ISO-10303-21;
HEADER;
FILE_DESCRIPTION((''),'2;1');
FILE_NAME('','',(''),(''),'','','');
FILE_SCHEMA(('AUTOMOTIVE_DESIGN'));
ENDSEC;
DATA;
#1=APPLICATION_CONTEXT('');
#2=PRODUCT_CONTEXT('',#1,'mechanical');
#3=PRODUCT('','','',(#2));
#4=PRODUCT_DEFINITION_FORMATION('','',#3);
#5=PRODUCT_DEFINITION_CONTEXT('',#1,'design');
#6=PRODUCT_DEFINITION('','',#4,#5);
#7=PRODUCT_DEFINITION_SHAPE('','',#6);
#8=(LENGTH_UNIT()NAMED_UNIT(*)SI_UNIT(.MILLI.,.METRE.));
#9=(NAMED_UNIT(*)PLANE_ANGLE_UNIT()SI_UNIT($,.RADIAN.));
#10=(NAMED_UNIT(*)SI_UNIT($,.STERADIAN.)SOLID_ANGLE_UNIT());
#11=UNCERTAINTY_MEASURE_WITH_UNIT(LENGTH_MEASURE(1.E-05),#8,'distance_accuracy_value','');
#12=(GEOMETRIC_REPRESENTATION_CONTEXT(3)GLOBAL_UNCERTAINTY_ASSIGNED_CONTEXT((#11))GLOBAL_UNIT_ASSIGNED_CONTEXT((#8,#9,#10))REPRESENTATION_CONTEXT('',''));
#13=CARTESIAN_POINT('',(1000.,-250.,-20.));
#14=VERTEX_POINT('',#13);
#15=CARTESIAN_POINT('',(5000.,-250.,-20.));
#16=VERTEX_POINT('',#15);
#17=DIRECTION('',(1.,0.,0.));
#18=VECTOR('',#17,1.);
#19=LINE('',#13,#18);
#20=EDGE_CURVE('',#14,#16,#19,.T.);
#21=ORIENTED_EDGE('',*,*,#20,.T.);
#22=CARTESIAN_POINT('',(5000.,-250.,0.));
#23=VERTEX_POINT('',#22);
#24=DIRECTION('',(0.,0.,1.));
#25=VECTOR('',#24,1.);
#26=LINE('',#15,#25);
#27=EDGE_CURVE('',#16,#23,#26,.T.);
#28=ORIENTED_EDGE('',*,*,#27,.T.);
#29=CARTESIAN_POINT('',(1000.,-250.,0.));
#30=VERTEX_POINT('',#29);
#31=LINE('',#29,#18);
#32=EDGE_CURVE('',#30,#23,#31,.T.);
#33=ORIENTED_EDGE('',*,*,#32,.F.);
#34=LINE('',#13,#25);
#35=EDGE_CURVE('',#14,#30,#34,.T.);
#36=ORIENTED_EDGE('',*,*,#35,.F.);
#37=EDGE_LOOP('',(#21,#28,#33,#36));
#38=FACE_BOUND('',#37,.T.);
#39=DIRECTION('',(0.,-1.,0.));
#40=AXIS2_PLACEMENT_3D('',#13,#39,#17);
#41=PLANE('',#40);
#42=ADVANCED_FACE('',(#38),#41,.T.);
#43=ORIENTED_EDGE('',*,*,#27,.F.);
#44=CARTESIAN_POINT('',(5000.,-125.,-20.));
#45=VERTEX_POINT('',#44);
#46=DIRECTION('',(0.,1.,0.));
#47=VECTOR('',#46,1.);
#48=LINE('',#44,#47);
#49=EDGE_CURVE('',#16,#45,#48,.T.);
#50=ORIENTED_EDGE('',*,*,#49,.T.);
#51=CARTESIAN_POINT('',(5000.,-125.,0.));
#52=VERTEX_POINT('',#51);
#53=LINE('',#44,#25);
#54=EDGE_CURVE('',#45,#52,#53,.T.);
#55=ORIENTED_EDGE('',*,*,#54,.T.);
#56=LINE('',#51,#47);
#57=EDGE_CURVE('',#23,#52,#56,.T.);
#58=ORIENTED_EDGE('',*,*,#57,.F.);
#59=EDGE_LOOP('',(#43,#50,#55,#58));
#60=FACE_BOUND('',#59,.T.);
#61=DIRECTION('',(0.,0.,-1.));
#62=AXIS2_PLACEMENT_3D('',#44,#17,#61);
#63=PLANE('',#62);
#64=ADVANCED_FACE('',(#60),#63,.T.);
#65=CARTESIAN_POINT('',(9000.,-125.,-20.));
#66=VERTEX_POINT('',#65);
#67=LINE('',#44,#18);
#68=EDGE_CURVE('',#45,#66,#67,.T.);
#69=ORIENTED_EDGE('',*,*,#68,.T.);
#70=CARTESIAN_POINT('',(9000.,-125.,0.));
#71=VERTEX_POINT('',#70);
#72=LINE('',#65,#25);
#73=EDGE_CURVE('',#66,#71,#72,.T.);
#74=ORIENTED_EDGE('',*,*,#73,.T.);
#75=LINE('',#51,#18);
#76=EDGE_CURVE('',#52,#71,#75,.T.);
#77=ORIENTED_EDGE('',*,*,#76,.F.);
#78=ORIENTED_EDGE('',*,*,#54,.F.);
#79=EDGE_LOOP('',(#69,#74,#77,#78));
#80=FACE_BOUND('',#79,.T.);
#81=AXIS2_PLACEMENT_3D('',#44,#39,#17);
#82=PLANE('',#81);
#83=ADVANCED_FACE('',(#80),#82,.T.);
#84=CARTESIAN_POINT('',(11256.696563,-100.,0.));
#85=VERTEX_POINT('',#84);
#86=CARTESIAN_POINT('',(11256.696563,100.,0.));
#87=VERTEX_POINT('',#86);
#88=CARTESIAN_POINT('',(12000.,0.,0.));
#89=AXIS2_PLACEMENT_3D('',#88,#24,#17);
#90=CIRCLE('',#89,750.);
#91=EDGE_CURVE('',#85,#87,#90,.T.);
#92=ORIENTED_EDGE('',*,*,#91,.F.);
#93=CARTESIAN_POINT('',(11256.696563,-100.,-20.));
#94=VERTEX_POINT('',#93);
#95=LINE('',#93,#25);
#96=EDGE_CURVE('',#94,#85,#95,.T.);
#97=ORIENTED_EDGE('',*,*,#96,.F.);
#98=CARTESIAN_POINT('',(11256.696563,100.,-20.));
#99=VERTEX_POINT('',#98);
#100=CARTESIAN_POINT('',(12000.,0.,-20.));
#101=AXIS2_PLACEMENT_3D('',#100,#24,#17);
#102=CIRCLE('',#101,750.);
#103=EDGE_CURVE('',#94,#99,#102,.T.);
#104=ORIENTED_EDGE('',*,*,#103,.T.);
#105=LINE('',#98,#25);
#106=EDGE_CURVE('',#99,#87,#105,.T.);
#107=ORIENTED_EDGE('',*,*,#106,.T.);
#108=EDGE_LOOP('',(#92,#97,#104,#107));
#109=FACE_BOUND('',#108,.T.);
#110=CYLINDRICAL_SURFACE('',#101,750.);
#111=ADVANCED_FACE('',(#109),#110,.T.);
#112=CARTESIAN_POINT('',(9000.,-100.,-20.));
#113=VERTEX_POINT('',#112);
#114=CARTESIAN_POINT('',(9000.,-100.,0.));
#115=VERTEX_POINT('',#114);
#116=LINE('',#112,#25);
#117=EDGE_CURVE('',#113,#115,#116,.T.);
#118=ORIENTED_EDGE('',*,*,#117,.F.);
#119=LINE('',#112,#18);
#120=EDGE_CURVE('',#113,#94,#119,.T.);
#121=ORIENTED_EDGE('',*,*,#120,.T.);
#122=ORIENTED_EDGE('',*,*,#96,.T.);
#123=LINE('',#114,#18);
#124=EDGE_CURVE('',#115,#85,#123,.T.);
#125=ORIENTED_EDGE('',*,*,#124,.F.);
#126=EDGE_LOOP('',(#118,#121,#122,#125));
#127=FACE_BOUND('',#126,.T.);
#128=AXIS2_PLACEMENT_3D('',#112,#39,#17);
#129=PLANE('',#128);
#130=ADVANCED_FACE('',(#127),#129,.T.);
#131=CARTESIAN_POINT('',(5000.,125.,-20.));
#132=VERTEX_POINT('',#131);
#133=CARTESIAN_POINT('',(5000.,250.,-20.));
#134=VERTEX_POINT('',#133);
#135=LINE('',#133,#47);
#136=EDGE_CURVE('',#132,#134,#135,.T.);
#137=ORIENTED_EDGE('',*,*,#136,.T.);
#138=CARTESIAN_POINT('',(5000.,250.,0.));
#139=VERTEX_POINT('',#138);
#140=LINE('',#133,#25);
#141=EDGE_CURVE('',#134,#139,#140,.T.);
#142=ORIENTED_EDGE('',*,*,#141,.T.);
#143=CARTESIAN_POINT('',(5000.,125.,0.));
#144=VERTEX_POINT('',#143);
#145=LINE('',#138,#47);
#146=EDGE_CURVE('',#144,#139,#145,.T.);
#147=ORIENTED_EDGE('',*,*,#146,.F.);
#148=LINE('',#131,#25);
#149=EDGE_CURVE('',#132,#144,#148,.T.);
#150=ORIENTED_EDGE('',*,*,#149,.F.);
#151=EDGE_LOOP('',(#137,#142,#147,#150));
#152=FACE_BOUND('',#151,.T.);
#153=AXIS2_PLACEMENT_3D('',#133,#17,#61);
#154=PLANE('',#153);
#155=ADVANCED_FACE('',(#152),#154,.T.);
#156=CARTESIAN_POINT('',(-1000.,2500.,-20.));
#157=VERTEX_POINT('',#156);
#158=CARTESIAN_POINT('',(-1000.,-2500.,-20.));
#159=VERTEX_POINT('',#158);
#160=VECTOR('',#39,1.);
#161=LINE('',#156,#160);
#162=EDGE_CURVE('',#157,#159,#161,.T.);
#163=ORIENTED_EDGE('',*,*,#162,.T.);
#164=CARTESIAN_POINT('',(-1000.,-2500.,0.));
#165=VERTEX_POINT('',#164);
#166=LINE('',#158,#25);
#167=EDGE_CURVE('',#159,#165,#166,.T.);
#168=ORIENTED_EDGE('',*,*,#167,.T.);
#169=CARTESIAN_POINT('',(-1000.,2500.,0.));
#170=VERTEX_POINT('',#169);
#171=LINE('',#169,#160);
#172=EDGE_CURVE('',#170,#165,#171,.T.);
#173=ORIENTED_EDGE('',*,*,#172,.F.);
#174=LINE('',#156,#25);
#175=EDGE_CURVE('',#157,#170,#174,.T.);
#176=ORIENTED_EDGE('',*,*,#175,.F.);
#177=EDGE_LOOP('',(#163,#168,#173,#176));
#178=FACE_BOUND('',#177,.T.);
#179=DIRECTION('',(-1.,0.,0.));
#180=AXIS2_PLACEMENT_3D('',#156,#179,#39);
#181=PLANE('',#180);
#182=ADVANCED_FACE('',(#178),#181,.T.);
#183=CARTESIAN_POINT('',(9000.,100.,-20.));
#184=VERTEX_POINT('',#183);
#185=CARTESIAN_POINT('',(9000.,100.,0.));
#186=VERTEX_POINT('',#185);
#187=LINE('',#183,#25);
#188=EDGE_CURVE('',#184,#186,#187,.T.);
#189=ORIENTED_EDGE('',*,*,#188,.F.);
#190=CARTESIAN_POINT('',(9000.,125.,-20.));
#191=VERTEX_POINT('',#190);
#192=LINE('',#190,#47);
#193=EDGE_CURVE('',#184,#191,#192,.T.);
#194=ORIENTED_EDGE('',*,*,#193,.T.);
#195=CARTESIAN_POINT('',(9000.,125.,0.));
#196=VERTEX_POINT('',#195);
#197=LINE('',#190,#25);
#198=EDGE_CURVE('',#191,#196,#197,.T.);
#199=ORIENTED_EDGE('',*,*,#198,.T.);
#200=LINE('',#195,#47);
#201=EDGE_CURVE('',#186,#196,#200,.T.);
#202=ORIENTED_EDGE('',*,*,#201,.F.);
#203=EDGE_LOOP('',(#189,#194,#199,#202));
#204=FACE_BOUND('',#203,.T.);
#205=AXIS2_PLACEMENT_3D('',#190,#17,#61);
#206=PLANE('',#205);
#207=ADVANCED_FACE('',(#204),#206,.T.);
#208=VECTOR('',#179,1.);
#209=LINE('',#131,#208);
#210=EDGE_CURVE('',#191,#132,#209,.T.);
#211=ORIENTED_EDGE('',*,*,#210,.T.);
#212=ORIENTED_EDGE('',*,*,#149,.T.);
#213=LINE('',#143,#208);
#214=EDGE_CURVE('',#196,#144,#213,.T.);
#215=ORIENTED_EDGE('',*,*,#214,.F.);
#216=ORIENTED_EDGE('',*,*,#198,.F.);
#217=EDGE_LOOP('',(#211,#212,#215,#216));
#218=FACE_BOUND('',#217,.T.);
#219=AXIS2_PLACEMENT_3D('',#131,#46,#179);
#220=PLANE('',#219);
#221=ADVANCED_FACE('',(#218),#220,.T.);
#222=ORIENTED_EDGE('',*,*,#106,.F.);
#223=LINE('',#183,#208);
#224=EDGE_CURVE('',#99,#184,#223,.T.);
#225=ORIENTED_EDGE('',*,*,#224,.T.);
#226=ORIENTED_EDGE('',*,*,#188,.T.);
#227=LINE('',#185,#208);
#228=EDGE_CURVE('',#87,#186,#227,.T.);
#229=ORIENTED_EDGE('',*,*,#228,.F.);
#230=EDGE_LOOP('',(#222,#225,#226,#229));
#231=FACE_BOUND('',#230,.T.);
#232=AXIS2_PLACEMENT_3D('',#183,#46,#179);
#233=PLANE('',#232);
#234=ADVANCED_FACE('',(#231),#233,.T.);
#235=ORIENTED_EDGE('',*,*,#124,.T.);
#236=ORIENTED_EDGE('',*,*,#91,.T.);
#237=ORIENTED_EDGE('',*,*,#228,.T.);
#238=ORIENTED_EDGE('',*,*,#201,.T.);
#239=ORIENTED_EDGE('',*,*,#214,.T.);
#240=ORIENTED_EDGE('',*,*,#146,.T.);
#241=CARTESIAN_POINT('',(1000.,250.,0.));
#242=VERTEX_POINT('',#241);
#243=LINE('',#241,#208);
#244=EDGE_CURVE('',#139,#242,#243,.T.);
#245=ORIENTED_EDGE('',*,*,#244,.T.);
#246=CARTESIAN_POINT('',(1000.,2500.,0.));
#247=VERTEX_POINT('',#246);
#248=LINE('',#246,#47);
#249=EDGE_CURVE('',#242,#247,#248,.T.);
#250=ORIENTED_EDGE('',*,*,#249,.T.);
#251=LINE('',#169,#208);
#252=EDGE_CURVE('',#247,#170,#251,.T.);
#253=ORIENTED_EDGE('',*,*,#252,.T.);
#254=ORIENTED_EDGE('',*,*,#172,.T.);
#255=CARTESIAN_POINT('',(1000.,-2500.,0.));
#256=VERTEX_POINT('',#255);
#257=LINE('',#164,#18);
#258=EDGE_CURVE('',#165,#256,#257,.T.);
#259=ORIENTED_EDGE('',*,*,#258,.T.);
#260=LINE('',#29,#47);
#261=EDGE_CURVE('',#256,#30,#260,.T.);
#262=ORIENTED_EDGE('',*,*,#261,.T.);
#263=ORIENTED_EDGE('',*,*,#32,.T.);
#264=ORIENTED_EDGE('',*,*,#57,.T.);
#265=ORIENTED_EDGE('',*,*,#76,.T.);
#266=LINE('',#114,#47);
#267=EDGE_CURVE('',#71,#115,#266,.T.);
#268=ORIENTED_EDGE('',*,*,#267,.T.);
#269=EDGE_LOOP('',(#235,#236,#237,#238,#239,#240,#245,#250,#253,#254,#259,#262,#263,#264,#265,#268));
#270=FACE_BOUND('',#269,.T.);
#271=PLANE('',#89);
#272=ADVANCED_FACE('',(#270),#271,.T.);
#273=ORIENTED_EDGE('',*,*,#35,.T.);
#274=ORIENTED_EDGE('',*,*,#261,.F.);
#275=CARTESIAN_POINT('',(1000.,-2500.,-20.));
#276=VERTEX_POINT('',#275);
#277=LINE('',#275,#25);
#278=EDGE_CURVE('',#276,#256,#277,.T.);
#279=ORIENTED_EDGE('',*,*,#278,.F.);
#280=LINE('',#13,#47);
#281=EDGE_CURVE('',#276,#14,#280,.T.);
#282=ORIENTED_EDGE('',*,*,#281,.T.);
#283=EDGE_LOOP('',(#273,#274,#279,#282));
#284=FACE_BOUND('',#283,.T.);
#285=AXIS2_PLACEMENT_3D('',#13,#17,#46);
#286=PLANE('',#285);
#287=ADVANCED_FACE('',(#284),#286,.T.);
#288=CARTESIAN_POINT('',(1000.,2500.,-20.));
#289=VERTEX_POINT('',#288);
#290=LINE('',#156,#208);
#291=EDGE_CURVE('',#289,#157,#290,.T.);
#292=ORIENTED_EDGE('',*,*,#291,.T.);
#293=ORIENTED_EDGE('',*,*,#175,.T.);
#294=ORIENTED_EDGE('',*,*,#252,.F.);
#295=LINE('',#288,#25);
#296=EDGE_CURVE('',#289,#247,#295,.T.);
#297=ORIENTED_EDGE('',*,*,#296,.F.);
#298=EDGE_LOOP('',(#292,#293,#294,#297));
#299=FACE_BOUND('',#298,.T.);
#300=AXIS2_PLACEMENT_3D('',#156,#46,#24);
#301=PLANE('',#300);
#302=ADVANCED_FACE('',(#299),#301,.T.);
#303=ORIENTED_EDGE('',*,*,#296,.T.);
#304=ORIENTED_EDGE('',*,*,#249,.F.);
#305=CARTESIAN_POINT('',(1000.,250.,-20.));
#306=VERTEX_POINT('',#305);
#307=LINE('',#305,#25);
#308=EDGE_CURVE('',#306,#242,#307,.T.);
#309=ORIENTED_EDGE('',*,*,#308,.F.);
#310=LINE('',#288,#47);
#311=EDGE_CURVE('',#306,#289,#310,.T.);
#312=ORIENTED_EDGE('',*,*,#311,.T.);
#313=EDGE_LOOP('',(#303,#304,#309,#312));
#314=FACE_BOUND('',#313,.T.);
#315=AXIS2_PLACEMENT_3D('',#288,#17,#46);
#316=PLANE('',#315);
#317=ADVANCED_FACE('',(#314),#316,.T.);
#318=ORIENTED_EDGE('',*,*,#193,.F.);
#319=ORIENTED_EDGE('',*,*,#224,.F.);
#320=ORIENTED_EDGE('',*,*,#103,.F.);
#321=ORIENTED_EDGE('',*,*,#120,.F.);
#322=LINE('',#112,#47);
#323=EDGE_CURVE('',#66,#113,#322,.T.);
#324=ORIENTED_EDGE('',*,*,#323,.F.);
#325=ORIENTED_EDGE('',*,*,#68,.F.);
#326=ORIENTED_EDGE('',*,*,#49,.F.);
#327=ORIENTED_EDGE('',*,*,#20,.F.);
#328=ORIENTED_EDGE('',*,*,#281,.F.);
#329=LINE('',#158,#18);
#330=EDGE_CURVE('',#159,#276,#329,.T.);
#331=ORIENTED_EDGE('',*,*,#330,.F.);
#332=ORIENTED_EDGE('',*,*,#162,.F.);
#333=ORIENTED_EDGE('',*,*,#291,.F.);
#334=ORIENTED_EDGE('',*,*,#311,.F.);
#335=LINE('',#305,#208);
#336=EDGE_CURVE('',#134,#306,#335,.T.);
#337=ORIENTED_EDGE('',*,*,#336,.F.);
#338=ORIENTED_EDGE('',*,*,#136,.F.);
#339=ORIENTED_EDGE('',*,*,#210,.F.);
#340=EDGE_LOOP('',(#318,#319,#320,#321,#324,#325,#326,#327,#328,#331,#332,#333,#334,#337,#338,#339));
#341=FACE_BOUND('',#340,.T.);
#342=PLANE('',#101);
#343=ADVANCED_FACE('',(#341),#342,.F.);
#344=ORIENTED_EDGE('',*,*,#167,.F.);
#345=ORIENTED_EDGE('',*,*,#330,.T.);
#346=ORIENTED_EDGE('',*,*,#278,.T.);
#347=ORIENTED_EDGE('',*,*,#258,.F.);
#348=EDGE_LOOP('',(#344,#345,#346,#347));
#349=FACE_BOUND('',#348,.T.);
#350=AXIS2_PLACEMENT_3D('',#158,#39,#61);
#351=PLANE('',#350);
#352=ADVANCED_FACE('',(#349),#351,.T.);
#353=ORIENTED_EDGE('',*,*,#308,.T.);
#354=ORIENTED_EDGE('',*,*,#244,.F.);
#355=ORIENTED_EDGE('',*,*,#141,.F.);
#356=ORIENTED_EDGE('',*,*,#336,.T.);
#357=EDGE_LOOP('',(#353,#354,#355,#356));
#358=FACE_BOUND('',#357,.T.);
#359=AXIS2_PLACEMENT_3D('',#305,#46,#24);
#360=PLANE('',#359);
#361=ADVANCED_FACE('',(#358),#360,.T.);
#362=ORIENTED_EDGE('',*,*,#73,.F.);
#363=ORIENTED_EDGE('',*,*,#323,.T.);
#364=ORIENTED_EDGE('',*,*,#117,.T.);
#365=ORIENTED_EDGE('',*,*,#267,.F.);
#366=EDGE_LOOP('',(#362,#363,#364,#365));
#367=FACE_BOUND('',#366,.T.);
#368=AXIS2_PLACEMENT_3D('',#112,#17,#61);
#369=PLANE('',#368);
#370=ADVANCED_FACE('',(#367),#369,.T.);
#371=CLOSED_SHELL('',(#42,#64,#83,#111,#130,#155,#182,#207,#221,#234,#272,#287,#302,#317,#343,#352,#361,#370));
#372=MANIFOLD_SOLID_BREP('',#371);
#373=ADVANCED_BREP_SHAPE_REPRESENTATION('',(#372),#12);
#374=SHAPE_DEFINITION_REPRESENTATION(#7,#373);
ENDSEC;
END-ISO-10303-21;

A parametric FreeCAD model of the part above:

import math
import FreeCAD as App
import Part
import Sketcher
Q = App.Units.Quantity

doc = App.newDocument("Part")
body = doc.addObject("PartDesign::Body", "Body")

# Sketch on XY plane
sketch1 = body.newObject("Sketcher::SketchObject", "Sketch")
sketch1.AttachmentSupport = (doc.getObject("XY_Plane"), [""])
sketch1.MapMode = "FlatFace"
sketch1.addGeometry(Part.LineSegment(App.Vector(5000, 250, 0), App.Vector(1000, 250, 0)), False)
sketch1.addGeometry(Part.LineSegment(App.Vector(1000, 250, 0), App.Vector(1000, 2500, 0)), False)
sketch1.addGeometry(Part.LineSegment(App.Vector(1000, 2500, 0), App.Vector(-1000, 2500, 0)), False)
sketch1.addGeometry(Part.LineSegment(App.Vector(-1000, 2500, 0), App.Vector(-1000, -2500, 0)), False)
sketch1.addGeometry(Part.LineSegment(App.Vector(-1000, -2500, 0), App.Vector(1000, -2500, 0)), False)
sketch1.addGeometry(Part.LineSegment(App.Vector(1000, -2500, 0), App.Vector(1000, -250, 0)), False)
sketch1.addGeometry(Part.LineSegment(App.Vector(1000, -250, 0), App.Vector(5000, -250, 0)), False)
sketch1.addGeometry(Part.LineSegment(App.Vector(5000, -250, 0), App.Vector(5000, -125, 0)), False)
sketch1.addGeometry(Part.LineSegment(App.Vector(5000, -125, 0), App.Vector(9000, -125, 0)), False)
sketch1.addGeometry(Part.LineSegment(App.Vector(9000, -125, 0), App.Vector(9000, -100, 0)), False)
sketch1.addGeometry(Part.LineSegment(App.Vector(9000, -100, 0), App.Vector(11257, -100, 0)), False)
sketch1.addGeometry(Part.ArcOfCircle(Part.Circle(App.Vector(12000, 0, 0), App.Vector(0, 0, 1), 750), math.radians(-172), math.radians(172)), False)
sketch1.addGeometry(Part.LineSegment(App.Vector(11257, 100, 0), App.Vector(9000, 100, 0)), False)
sketch1.addGeometry(Part.LineSegment(App.Vector(9000, 100, 0), App.Vector(9000, 125, 0)), False)
sketch1.addGeometry(Part.LineSegment(App.Vector(9000, 125, 0), App.Vector(5000, 125, 0)), False)
sketch1.addGeometry(Part.LineSegment(App.Vector(5000, 125, 0), App.Vector(5000, 250, 0)), False)
sketch1.addConstraint(Sketcher.Constraint("Coincident", 0, 2, 1, 1))
sketch1.addConstraint(Sketcher.Constraint("Coincident", 1, 2, 2, 1))
sketch1.addConstraint(Sketcher.Constraint("Coincident", 2, 2, 3, 1))
sketch1.addConstraint(Sketcher.Constraint("Coincident", 3, 2, 4, 1))
sketch1.addConstraint(Sketcher.Constraint("Coincident", 4, 2, 5, 1))
sketch1.addConstraint(Sketcher.Constraint("Coincident", 5, 2, 6, 1))
sketch1.addConstraint(Sketcher.Constraint("Coincident", 6, 2, 7, 1))
sketch1.addConstraint(Sketcher.Constraint("Coincident", 7, 2, 8, 1))
sketch1.addConstraint(Sketcher.Constraint("Coincident", 8, 2, 9, 1))
sketch1.addConstraint(Sketcher.Constraint("Coincident", 9, 2, 10, 1))
sketch1.addConstraint(Sketcher.Constraint("Coincident", 10, 2, 11, 1))
sketch1.addConstraint(Sketcher.Constraint("Coincident", 11, 2, 12, 1))
sketch1.addConstraint(Sketcher.Constraint("Coincident", 12, 2, 13, 1))
sketch1.addConstraint(Sketcher.Constraint("Coincident", 13, 2, 14, 1))
sketch1.addConstraint(Sketcher.Constraint("Coincident", 14, 2, 15, 1))
sketch1.addConstraint(Sketcher.Constraint("Coincident", 15, 2, 0, 1))
sketch1.addConstraint(Sketcher.Constraint("Horizontal", 0))
sketch1.addConstraint(Sketcher.Constraint("Vertical", 1))
sketch1.addConstraint(Sketcher.Constraint("Horizontal", 2))
sketch1.addConstraint(Sketcher.Constraint("Vertical", 3))
sketch1.addConstraint(Sketcher.Constraint("Horizontal", 4))
sketch1.addConstraint(Sketcher.Constraint("Vertical", 5))
sketch1.addConstraint(Sketcher.Constraint("Horizontal", 6))
sketch1.addConstraint(Sketcher.Constraint("Vertical", 7))
sketch1.addConstraint(Sketcher.Constraint("Horizontal", 8))
sketch1.addConstraint(Sketcher.Constraint("Vertical", 9))
sketch1.addConstraint(Sketcher.Constraint("Horizontal", 10))
sketch1.addConstraint(Sketcher.Constraint("Horizontal", 12))
sketch1.addConstraint(Sketcher.Constraint("Vertical", 13))
sketch1.addConstraint(Sketcher.Constraint("Horizontal", 14))
sketch1.addConstraint(Sketcher.Constraint("Vertical", 15))
sketch1.addConstraint(Sketcher.Constraint("Symmetric", 1, 2, 3, 2, -1, 1))
sketch1.addConstraint(Sketcher.Constraint("Symmetric", 0, 2, 5, 2, -1))
sketch1.addConstraint(Sketcher.Constraint("Symmetric", 9, 2, 12, 2, -1))
sketch1.addConstraint(Sketcher.Constraint("Symmetric", 7, 2, 14, 2, -1))
sketch1.addConstraint(Sketcher.Constraint("PointOnObject", 11, 3, -1))
sketch1.addConstraint(Sketcher.Constraint("Equal", 6, 8))
sketch1.addConstraint(Sketcher.Constraint("Radius", 11, Q("750 mm")))
sketch1.addConstraint(Sketcher.Constraint("DistanceX", 0, 2, 0, 1, Q("4000 mm")))
sketch1.addConstraint(Sketcher.Constraint("DistanceX", 2, 2, 2, 1, Q("2000 mm")))
sketch1.addConstraint(Sketcher.Constraint("DistanceY", 1, 1, 1, 2, Q("2250 mm")))
sketch1.addConstraint(Sketcher.Constraint("DistanceY", 3, 2, 3, 1, Q("5000 mm")))
sketch1.addConstraint(Sketcher.Constraint("DistanceY", 7, 1, 7, 2, Q("125 mm")))
sketch1.addConstraint(Sketcher.Constraint("DistanceY", 9, 1, 9, 2, Q("25 mm")))
sketch1.addConstraint(Sketcher.Constraint("DistanceX", -1, 1, 11, 3, Q("12000 mm")))
pad1 = body.newObject("PartDesign::Pad", "Pad")
pad1.Profile = sketch1
pad1.Length = 20
pad1.Reversed = True

doc.recompute()
